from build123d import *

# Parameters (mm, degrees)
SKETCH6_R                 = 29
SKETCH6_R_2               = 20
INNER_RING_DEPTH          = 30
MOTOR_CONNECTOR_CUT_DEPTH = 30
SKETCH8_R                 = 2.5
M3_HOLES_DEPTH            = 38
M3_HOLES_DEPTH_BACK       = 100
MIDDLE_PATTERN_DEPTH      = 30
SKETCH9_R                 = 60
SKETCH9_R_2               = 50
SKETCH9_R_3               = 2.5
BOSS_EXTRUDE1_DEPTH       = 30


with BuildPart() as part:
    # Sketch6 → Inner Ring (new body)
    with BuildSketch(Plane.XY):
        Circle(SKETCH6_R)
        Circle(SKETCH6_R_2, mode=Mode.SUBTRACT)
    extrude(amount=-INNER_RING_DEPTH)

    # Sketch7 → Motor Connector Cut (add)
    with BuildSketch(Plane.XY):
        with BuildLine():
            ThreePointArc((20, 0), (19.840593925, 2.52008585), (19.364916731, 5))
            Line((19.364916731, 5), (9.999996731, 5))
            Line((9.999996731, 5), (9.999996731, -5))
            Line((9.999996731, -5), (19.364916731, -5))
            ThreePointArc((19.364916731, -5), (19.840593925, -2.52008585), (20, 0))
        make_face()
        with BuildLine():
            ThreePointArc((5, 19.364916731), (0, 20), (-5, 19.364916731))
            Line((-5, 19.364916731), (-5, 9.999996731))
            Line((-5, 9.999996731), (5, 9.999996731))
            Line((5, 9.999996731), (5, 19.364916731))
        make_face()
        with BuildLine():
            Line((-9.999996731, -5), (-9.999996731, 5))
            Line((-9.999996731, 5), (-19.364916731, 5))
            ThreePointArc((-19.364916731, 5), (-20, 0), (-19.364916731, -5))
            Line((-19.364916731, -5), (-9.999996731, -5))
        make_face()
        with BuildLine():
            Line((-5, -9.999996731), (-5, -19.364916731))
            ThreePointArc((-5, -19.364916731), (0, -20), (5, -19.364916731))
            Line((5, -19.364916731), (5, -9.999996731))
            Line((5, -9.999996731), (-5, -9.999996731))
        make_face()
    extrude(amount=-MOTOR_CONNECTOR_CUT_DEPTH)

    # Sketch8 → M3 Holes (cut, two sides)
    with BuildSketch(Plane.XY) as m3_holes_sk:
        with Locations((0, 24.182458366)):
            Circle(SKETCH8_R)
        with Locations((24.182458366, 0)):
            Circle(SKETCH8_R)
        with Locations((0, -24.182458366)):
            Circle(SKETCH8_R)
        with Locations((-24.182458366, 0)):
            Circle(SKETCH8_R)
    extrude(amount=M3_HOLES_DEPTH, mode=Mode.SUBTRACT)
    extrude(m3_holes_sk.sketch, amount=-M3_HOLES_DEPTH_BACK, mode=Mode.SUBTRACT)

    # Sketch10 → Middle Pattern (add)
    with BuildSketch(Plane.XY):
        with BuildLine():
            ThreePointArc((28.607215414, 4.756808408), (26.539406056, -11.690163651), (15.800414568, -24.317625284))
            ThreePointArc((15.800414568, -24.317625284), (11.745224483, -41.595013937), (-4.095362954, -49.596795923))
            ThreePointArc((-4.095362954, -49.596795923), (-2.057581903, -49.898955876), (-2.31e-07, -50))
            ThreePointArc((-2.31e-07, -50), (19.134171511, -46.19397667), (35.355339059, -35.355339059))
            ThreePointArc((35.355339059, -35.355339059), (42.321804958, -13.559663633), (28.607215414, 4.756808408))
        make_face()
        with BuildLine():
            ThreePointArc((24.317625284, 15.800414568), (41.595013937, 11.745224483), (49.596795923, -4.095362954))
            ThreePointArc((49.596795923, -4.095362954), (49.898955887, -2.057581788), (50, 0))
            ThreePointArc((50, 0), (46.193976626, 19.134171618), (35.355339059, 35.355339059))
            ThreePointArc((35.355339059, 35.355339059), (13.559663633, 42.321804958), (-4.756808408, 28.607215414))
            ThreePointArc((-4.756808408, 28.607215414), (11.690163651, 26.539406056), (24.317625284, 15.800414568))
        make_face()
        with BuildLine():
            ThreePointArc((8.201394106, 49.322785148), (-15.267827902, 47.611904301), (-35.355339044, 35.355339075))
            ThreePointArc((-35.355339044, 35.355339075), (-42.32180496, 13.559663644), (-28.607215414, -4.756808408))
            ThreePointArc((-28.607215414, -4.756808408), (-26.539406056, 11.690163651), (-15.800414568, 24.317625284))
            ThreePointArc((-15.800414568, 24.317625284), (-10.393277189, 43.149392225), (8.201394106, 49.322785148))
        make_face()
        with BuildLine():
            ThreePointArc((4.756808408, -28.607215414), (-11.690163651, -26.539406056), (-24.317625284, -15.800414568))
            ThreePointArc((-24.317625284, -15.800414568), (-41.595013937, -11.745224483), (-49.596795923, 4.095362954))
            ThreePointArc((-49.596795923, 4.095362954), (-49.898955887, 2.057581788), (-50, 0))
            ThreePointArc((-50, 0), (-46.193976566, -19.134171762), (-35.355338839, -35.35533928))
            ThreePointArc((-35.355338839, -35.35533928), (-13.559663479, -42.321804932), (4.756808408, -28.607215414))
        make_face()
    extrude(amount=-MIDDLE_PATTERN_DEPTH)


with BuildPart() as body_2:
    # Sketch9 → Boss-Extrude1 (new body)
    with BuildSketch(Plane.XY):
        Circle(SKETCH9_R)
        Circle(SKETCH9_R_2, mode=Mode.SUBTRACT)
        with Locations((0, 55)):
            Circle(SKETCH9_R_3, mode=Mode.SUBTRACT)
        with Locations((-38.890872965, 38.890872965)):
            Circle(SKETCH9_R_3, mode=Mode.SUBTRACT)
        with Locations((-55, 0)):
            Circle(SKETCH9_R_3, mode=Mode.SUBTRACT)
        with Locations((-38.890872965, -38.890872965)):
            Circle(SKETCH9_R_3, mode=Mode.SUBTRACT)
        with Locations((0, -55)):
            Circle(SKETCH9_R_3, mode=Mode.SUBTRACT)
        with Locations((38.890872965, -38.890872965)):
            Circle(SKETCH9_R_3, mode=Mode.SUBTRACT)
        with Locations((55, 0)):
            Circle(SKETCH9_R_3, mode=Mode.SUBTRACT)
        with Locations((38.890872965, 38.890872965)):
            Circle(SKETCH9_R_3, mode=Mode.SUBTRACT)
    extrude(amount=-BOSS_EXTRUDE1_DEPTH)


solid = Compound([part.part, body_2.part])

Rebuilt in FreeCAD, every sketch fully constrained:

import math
import FreeCAD as App
import Part
import Sketcher

V = App.Vector

doc = App.newDocument("Part")
body = doc.addObject("PartDesign::Body", "Body")

# Sketch on XY plane
sketch1 = body.newObject("Sketcher::SketchObject", "Sketch")
sketch1.AttachmentSupport = (doc.getObject("XY_Plane"), [""])
sketch1.MapMode = "FlatFace"
sketch1.addGeometry([
    Part.Circle(V(0, 0, 0), V(0, 0, 1), 29),
    Part.Circle(V(0, 0, 0), V(0, 0, 1), 20),
], False)
sketch1.addConstraint([
    Sketcher.Constraint("Coincident", 0, 3, -1, 1),
    Sketcher.Constraint("Coincident", 1, 3, -1, 1),
    Sketcher.Constraint("Diameter", 0, 58.0),
    Sketcher.Constraint("Diameter", 1, 40.0),
])
pad1 = body.newObject("PartDesign::Pad", "Pad")
pad1.Profile = sketch1
pad1.Length = 30
pad1.Reversed = True

# Sketch on XY plane
sketch2 = body.newObject("Sketcher::SketchObject", "Sketch001")
sketch2.AttachmentSupport = (doc.getObject("XY_Plane"), [""])
sketch2.MapMode = "FlatFace"
sketch2.addGeometry([
    Part.ArcOfCircle(Part.Circle(V(0, 0, 0), V(0, 0, 1), 20), math.radians(0), math.radians(14.477512)),  # 0
    Part.LineSegment(V(19.364917, 5, 0), V(9.999997, 5, 0)),  # 1
    Part.LineSegment(V(9.999997, 5, 0), V(9.999997, -5, 0)),  # 2
    Part.LineSegment(V(9.999997, -5, 0), V(19.364917, -5, 0)),  # 3
    Part.ArcOfCircle(Part.Circle(V(0, 0, 0), V(0, 0, 1), 20), math.radians(-14.477512), math.radians(0)),  # 4
    Part.ArcOfCircle(Part.Circle(V(0, 0, 0), V(0, 0, 1), 20), math.radians(75.522488), math.radians(104.477512)),  # 5
    Part.LineSegment(V(-5, 19.364917, 0), V(-5, 9.999997, 0)),  # 6
    Part.LineSegment(V(-5, 9.999997, 0), V(5, 9.999997, 0)),  # 7
    Part.LineSegment(V(5, 9.999997, 0), V(5, 19.364917, 0)),  # 8
    Part.LineSegment(V(-9.999997, -5, 0), V(-9.999997, 5, 0)),  # 9
    Part.LineSegment(V(-9.999997, 5, 0), V(-19.364917, 5, 0)),  # 10
    Part.ArcOfCircle(Part.Circle(V(0, 0, 0), V(0, 0, 1), 20), math.radians(165.522488), math.radians(194.477512)),  # 11
    Part.LineSegment(V(-19.364917, -5, 0), V(-9.999997, -5, 0)),  # 12
    Part.LineSegment(V(-5, -9.999997, 0), V(-5, -19.364917, 0)),  # 13
    Part.ArcOfCircle(Part.Circle(V(0, 0, 0), V(0, 0, 1), 20), math.radians(-104.477512), math.radians(-75.522488)),  # 14
    Part.LineSegment(V(5, -19.364917, 0), V(5, -9.999997, 0)),  # 15
    Part.LineSegment(V(5, -9.999997, 0), V(-5, -9.999997, 0)),  # 16
], False)
sketch2.addConstraint([
    Sketcher.Constraint("Coincident", 0, 2, 1, 1),
    Sketcher.Constraint("Coincident", 1, 2, 2, 1),
    Sketcher.Constraint("Coincident", 2, 2, 3, 1),
    Sketcher.Constraint("Coincident", 3, 2, 4, 1),
    Sketcher.Constraint("Tangent", 4, 2, 0, 1),
    Sketcher.Constraint("Coincident", 5, 2, 6, 1),
    Sketcher.Constraint("Coincident", 6, 2, 7, 1),
    Sketcher.Constraint("Coincident", 7, 2, 8, 1),
    Sketcher.Constraint("Coincident", 8, 2, 5, 1),
    Sketcher.Constraint("Coincident", 9, 2, 10, 1),
    Sketcher.Constraint("Coincident", 10, 2, 11, 1),
    Sketcher.Constraint("Coincident", 11, 2, 12, 1),
    Sketcher.Constraint("Coincident", 12, 2, 9, 1),
    Sketcher.Constraint("Coincident", 13, 2, 14, 1),
    Sketcher.Constraint("Coincident", 14, 2, 15, 1),
    Sketcher.Constraint("Coincident", 15, 2, 16, 1),
    Sketcher.Constraint("Coincident", 16, 2, 13, 1),
    Sketcher.Constraint("Horizontal", 1),
    Sketcher.Constraint("Vertical", 2),
    Sketcher.Constraint("Horizontal", 3),
    Sketcher.Constraint("Vertical", 6),
    Sketcher.Constraint("Horizontal", 7),
    Sketcher.Constraint("Vertical", 8),
    Sketcher.Constraint("Vertical", 9),
    Sketcher.Constraint("Horizontal", 10),
    Sketcher.Constraint("Horizontal", 12),
    Sketcher.Constraint("Vertical", 13),
    Sketcher.Constraint("Vertical", 15),
    Sketcher.Constraint("Horizontal", 16),
    Sketcher.Constraint("Coincident", 0, 3, -1, 1),
    Sketcher.Constraint("Coincident", 5, 3, -1, 1),
    Sketcher.Constraint("Coincident", 11, 3, -1, 1),
    Sketcher.Constraint("Coincident", 14, 3, -1, 1),
    Sketcher.Constraint("Equal", 0, 4),
    Sketcher.Constraint("Equal", 4, 5),
    Sketcher.Constraint("Equal", 5, 11),
    Sketcher.Constraint("Equal", 11, 14),
    Sketcher.Constraint("Symmetric", 2, 2, 9, 2, -1, 1),
    Sketcher.Constraint("Symmetric", 6, 2, 15, 2, -1, 1),
    Sketcher.Constraint("PointOnObject", 4, 2, -1),
    Sketcher.Constraint("Horizontal", 5, 2, 8, 2),
    Sketcher.Constraint("Horizontal", 1, 2, 9, 2),
    Sketcher.Constraint("Horizontal", 3, 2, 11, 2),
    Sketcher.Constraint("Horizontal", 13, 2, 14, 2),
    Sketcher.Constraint("Equal", 16, 2),
    Sketcher.Constraint("Equal", 12, 6),
    Sketcher.Constraint("Radius", 0, 20.0),
    Sketcher.Constraint("DistanceX", 7, 1, 7, 2, 10.0),
    Sketcher.Constraint("DistanceX", 1, 2, 1, 1, 9.36492),
])
pad2 = body.newObject("PartDesign::Pad", "Pad001")
pad2.Profile = sketch2
pad2.Length = 30
pad2.Reversed = True

# Sketch on XY plane
sketch3 = body.newObject("Sketcher::SketchObject", "Sketch002")
sketch3.AttachmentSupport = (doc.getObject("XY_Plane"), [""])
sketch3.MapMode = "FlatFace"
sketch3.addGeometry([
    Part.Circle(V(0, 24.182458, 0), V(0, 0, 1), 2.5),
    Part.Circle(V(24.182458, 0, 0), V(0, 0, 1), 2.5),
    Part.Circle(V(0, -24.182458, 0), V(0, 0, 1), 2.5),
    Part.Circle(V(-24.182458, 0, 0), V(0, 0, 1), 2.5),
], False)
sketch3.addConstraint([
    Sketcher.Constraint("Equal", 0, 1),
    Sketcher.Constraint("Equal", 1, 2),
    Sketcher.Constraint("Equal", 2, 3),
    Sketcher.Constraint("Symmetric", 0, 3, 2, 3, -1, 1),
    Sketcher.Constraint("Symmetric", 1, 3, 3, 3, -1, 1),
    Sketcher.Constraint("PointOnObject", 0, 3, -2),
    Sketcher.Constraint("PointOnObject", 1, 3, -1),
    Sketcher.Constraint("Diameter", 0, 5.0),
    Sketcher.Constraint("DistanceY", -1, 1, 0, 3, 24.182458),
    Sketcher.Constraint("DistanceX", -1, 1, 1, 3, 24.182458),
])
pocket1 = body.newObject("PartDesign::Pocket", "Pocket")
pocket1.Profile = sketch3
pocket1.Type = "ThroughAll"
pocket1.Midplane = True

# Sketch on XY plane
sketch4 = body.newObject("Sketcher::SketchObject", "Sketch003")
sketch4.AttachmentSupport = (doc.getObject("XY_Plane"), [""])
sketch4.MapMode = "FlatFace"
sketch4.addGeometry([
    Part.ArcOfCircle(Part.Circle(V(0, 0, 0), V(0, 0, 1), 29), math.radians(-56.986141), math.radians(9.440766)),  # 0
    Part.ArcOfCircle(Part.Circle(V(-4.756808, -28.607215, 0), V(0, 0, 1), 21), math.radians(-88.195033), math.radians(11.786546)),  # 1
    Part.ArcOfCircle(Part.Circle(V(0, -29, 0), V(0, 0, 1), 21), math.radians(-101.245733), math.radians(-90.000001)),  # 2
    Part.ArcOfCircle(Part.Circle(V(0, 0, 0), V(0, 0, 1), 50), math.radians(-90), math.radians(-45)),  # 3
    Part.ArcOfCircle(Part.Circle(V(17.701562, -17.701562, 0), V(0, 0, 1), 24.966211), math.radians(-45), math.radians(64.099062)),  # 4
    Part.ArcOfCircle(Part.Circle(V(28.607215, -4.756808, 0), V(0, 0, 1), 21), math.radians(1.804967), math.radians(101.786546)),  # 5
    Part.ArcOfCircle(Part.Circle(V(29, 0, 0), V(0, 0, 1), 21), math.radians(-11.245733), math.radians(0)),  # 6
    Part.ArcOfCircle(Part.Circle(V(0, 0, 0), V(0, 0, 1), 50), math.radians(0), math.radians(45)),  # 7
    Part.ArcOfCircle(Part.Circle(V(17.701562, 17.701562, 0), V(0, 0, 1), 24.966211), math.radians(45), math.radians(154.099062)),  # 8
    Part.ArcOfCircle(Part.Circle(V(0, 0, 0), V(0, 0, 1), 29), math.radians(33.013859), math.radians(99.440766)),  # 9
    Part.ArcOfCircle(Part.Circle(V(0, 0, 0), V(0, 0, 1), 50), math.radians(80.559233), math.radians(135)),  # 10
    Part.ArcOfCircle(Part.Circle(V(-17.701562, 17.701562, 0), V(0, 0, 1), 24.966211), math.radians(135), math.radians(244.099062)),  # 11
    Part.ArcOfCircle(Part.Circle(V(0, 0, 0), V(0, 0, 1), 29), math.radians(123.013859), math.radians(189.440766)),  # 12
    Part.ArcOfCircle(Part.Circle(V(4.756808, 28.607215, 0), V(0, 0, 1), 21), math.radians(80.559233), math.radians(191.786546)),  # 13
    Part.ArcOfCircle(Part.Circle(V(0, 0, 0), V(0, 0, 1), 29), math.radians(-146.986141), math.radians(-80.559234)),  # 14
    Part.ArcOfCircle(Part.Circle(V(-28.607215, 4.756808, 0), V(0, 0, 1), 21), math.radians(-178.195033), math.radians(-78.213454)),  # 15
    Part.ArcOfCircle(Part.Circle(V(-29, 0, 0), V(0, 0, 1), 21), math.radians(168.754267), math.radians(180)),  # 16
    Part.ArcOfCircle(Part.Circle(V(0, 0, 0), V(0, 0, 1), 50), math.radians(180), math.radians(225)),  # 17
    Part.ArcOfCircle(Part.Circle(V(-17.701562, -17.701562, 0), V(0, 0, 1), 24.966211), math.radians(-134.999999), math.radians(-25.900938)),  # 18
], False)
sketch4.addConstraint([
    Sketcher.Constraint("Coincident", 0, 1, 1, 2),
    Sketcher.Constraint("Coincident", 1, 1, 2, 1),
    Sketcher.Constraint("Tangent", 2, 2, 3, 1),
    Sketcher.Constraint("Tangent", 3, 2, 4, 1),
    Sketcher.Constraint("Coincident", 4, 2, 0, 2),
    Sketcher.Constraint("Coincident", 5, 1, 6, 1),
    Sketcher.Constraint("Tangent", 6, 2, 7, 1),
    Sketcher.Constraint("Tangent", 7, 2, 8, 1),
    Sketcher.Constraint("Coincident", 8, 2, 9, 2),
    Sketcher.Constraint("Coincident", 9, 1, 5, 2),
    Sketcher.Constraint("Tangent", 10, 2, 11, 1),
    Sketcher.Constraint("Coincident", 11, 2, 12, 2),
    Sketcher.Constraint("Coincident", 12, 1, 13, 2),
    Sketcher.Constraint("Tangent", 13, 1, 10, 1),
    Sketcher.Constraint("Coincident", 14, 1, 15, 2),
    Sketcher.Constraint("Coincident", 15, 1, 16, 1),
    Sketcher.Constraint("Tangent", 16, 2, 17, 1),
    Sketcher.Constraint("Tangent", 17, 2, 18, 1),
    Sketcher.Constraint("Coincident", 18, 2, 14, 2),
    Sketcher.Constraint("Coincident", 0, 3, -1, 1),
    Sketcher.Constraint("Coincident", 3, 3, -1, 1),
    Sketcher.Constraint("Coincident", 7, 3, -1, 1),
    Sketcher.Constraint("Coincident", 9, 3, -1, 1),
    Sketcher.Constraint("Coincident", 10, 3, -1, 1),
    Sketcher.Constraint("Coincident", 12, 3, -1, 1),
    Sketcher.Constraint("Coincident", 14, 3, -1, 1),
    Sketcher.Constraint("Coincident", 17, 3, -1, 1),
    Sketcher.Constraint("Equal", 1, 2),
    Sketcher.Constraint("Equal", 2, 5),
    Sketcher.Constraint("Equal", 5, 6),
    Sketcher.Constraint("Equal", 3, 7),
    Sketcher.Constraint("Equal", 4, 8),
    Sketcher.Constraint("Equal", 0, 9),
    Sketcher.Constraint("Equal", 7, 10),
    Sketcher.Constraint("Equal", 8, 11),
    Sketcher.Constraint("Equal", 9, 12),
    Sketcher.Constraint("Equal", 6, 13),
    Sketcher.Constraint("Equal", 12, 14),
    Sketcher.Constraint("Equal", 13, 15),
    Sketcher.Constraint("Equal", 15, 16),
    Sketcher.Constraint("Equal", 10, 17),
    Sketcher.Constraint("Equal", 11, 18),
    Sketcher.Constraint("Symmetric", 1, 3, 13, 3, -1, 1),
    Sketcher.Constraint("Symmetric", 5, 3, 15, 3, -1, 1),
    Sketcher.Constraint("PointOnObject", 2, 3, -2),
    Sketcher.Constraint("PointOnObject", 6, 3, -1),
    Sketcher.Constraint("PointOnObject", 16, 3, -1),
    Sketcher.Constraint("Horizontal", 8, 3, 11, 3),
    Sketcher.Constraint("Horizontal", 4, 3, 18, 3),
    Sketcher.Constraint("Horizontal", 15, 3, 4, 2),
    Sketcher.Constraint("Horizontal", 13, 3, 8, 2),
    Sketcher.Constraint("Horizontal", 5, 3, 11, 2),
    Sketcher.Constraint("Vertical", 5, 3, 4, 2),
    Sketcher.Constraint("Vertical", 1, 3, 8, 2),
    Sketcher.Constraint("Radius", 0, 29.0),
    Sketcher.Constraint("Radius", 1, 21.0),
    Sketcher.Constraint("Radius", 4, 24.966211),
    Sketcher.Constraint("DistanceX", 0, 1, 5, 3, 12.806801),
])
pad3 = body.newObject("PartDesign::Pad", "Pad002")
pad3.Profile = sketch4
pad3.Length = 30
pad3.Reversed = True
body2 = doc.addObject("PartDesign::Body", "Body001")

# Sketch on XY plane
sketch5 = body2.newObject("Sketcher::SketchObject", "Sketch004")
sketch5.AttachmentSupport = (doc.getObject("XY_Plane001"), [""])
sketch5.MapMode = "FlatFace"
sketch5.addGeometry([
    Part.Circle(V(0, 0, 0), V(0, 0, 1), 60),  # 0
    Part.Circle(V(-38.890873, -38.890873, 0), V(0, 0, 1), 2.5),  # 1
    Part.Circle(V(0, -55, 0), V(0, 0, 1), 2.5),  # 2
    Part.Circle(V(38.890873, -38.890873, 0), V(0, 0, 1), 2.5),  # 3
    Part.Circle(V(-55, 0, 0), V(0, 0, 1), 2.5),  # 4
    Part.Circle(V(-38.890873, 38.890873, 0), V(0, 0, 1), 2.5),  # 5
    Part.Circle(V(0, 0, 0), V(0, 0, 1), 50),  # 6
    Part.Circle(V(55, 0, 0), V(0, 0, 1), 2.5),  # 7
    Part.Circle(V(0, 55, 0), V(0, 0, 1), 2.5),  # 8
    Part.Circle(V(38.890873, 38.890873, 0), V(0, 0, 1), 2.5),  # 9
], False)
sketch5.addConstraint([
    Sketcher.Constraint("Coincident", 0, 3, -1, 1),
    Sketcher.Constraint("Coincident", 6, 3, -1, 1),
    Sketcher.Constraint("Equal", 1, 2),
    Sketcher.Constraint("Equal", 2, 3),
    Sketcher.Constraint("Equal", 3, 4),
    Sketcher.Constraint("Equal", 4, 5),
    Sketcher.Constraint("Equal", 5, 7),
    Sketcher.Constraint("Equal", 7, 8),
    Sketcher.Constraint("Equal", 8, 9),
    Sketcher.Constraint("Symmetric", 3, 3, 5, 3, -1, 1),
    Sketcher.Constraint("Symmetric", 4, 3, 7, 3, -1, 1),
    Sketcher.Constraint("Symmetric", 2, 3, 8, 3, -1, 1),
    Sketcher.Constraint("Symmetric", 1, 3, 9, 3, -1, 1),
    Sketcher.Constraint("Symmetric", 1, 3, 3, 3, -2),
    Sketcher.Constraint("PointOnObject", 2, 3, -2),
    Sketcher.Constraint("PointOnObject", 4, 3, -1),
    Sketcher.Constraint("Diameter", 0, 120.0),
    Sketcher.Constraint("Diameter", 1, 5.0),
    Sketcher.Constraint("Diameter", 6, 100.0),
    Sketcher.Constraint("DistanceY", 2, 3, -1, 1, 55.0),
    Sketcher.Constraint("DistanceX", 4, 3, -1, 1, 55.0),
    Sketcher.Constraint("DistanceX", 1, 3, -1, 1, 38.890873),
    Sketcher.Constraint("DistanceY", 1, 3, -1, 1, 38.890873),
])
pad4 = body2.newObject("PartDesign::Pad", "Pad003")
pad4.Profile = sketch5
pad4.Length = 30
pad4.Reversed = True

doc.recompute()
